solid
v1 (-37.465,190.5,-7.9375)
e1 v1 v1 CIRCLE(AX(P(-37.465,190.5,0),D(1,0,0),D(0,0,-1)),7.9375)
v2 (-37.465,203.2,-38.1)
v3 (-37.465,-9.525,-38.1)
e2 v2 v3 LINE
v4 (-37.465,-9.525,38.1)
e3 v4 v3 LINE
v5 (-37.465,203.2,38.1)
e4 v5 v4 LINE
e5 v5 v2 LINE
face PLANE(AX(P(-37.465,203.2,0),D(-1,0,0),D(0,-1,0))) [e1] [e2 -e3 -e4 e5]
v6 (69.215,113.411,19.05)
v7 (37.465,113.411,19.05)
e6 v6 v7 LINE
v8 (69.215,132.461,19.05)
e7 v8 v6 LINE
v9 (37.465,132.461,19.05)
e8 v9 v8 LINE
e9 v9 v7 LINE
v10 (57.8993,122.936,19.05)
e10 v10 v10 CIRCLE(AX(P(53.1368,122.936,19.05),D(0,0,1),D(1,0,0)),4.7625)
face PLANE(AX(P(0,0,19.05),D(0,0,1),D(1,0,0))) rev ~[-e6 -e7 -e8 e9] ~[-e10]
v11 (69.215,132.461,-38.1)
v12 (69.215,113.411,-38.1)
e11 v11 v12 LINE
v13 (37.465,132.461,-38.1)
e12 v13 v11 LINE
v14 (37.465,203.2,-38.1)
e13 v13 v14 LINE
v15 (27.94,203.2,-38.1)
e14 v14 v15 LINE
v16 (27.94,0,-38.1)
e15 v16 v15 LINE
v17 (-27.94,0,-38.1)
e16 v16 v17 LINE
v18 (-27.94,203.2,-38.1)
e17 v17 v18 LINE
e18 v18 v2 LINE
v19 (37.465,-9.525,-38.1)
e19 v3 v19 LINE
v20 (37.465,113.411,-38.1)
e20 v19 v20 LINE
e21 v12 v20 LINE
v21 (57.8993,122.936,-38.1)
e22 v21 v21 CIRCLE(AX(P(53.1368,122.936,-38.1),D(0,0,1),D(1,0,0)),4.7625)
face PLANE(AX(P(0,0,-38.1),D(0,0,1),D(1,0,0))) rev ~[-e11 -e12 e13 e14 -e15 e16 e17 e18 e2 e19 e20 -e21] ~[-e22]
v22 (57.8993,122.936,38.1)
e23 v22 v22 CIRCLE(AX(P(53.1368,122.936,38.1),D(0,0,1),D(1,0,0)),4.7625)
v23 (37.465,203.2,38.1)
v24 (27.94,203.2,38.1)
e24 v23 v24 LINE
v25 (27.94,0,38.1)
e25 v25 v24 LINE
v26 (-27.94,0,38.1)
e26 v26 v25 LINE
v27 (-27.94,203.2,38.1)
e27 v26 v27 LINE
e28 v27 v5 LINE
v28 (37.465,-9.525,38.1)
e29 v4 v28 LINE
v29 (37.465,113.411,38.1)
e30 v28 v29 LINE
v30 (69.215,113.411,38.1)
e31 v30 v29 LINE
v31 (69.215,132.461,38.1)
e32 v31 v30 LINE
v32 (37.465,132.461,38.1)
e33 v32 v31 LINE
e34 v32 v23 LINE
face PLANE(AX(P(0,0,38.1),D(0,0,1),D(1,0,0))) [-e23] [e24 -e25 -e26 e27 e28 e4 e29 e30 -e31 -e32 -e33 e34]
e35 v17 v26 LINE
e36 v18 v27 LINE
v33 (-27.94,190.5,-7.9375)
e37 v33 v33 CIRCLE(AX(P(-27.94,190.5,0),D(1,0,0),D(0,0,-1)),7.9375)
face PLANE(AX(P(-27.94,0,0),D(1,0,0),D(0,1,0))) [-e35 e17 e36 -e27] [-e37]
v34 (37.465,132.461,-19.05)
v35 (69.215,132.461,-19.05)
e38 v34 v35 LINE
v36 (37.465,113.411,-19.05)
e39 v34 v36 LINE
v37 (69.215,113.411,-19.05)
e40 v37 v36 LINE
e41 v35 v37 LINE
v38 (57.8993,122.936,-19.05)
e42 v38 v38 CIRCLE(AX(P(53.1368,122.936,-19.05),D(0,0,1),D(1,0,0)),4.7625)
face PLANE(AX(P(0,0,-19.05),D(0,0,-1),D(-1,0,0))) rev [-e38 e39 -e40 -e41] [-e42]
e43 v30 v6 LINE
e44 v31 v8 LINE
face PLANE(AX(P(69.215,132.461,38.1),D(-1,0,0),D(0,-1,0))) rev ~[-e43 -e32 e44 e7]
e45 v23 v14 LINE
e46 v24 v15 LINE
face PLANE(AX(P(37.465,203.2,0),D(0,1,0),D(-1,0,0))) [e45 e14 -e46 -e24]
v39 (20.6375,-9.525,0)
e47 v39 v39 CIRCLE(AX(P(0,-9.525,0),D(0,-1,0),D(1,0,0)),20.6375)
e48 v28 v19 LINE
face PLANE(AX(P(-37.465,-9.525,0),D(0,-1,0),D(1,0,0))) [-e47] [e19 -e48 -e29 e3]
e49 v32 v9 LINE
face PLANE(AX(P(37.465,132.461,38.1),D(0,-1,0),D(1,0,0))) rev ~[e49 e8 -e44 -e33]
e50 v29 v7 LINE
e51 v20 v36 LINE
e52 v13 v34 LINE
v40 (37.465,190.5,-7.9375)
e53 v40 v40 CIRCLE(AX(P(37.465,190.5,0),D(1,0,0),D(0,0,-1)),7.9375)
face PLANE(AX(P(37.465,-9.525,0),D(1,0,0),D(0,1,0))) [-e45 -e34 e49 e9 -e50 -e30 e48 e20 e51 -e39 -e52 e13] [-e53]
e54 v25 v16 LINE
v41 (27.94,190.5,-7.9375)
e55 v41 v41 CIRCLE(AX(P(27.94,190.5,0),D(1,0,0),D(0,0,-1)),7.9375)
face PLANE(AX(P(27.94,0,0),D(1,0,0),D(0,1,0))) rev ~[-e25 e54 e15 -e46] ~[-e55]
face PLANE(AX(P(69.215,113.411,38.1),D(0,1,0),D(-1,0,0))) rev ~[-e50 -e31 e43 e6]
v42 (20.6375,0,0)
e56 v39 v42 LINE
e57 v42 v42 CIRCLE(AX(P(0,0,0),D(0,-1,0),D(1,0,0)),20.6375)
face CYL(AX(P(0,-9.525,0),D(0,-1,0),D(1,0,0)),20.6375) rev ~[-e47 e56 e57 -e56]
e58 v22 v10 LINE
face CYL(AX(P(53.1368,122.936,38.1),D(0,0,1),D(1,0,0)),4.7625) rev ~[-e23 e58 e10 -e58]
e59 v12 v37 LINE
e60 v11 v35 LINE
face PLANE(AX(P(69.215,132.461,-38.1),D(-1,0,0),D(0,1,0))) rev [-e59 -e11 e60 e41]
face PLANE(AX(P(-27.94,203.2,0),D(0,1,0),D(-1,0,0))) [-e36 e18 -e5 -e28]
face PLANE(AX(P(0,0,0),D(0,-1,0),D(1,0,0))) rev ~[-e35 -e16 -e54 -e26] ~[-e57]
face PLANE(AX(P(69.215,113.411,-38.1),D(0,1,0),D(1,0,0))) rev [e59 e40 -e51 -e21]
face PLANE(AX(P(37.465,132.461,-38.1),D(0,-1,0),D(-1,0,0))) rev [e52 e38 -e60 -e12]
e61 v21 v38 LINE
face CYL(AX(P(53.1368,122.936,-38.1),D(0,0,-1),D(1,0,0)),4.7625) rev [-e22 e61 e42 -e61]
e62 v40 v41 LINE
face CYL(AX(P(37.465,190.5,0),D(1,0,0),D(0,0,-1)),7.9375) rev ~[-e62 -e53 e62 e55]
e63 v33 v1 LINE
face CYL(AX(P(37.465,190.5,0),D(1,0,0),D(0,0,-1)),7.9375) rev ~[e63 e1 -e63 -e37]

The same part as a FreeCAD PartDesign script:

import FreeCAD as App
import Part
import Sketcher
from FreeCAD import Vector
Q = App.Units.Quantity


def add_polygon(sketch, points):
    """Adds a closed chain of lines whose ends are joined by coincident constraints."""
    first, n = sketch.GeometryCount, len(points)
    for a, b in zip(points, points[1:] + points[:1]):
        sketch.addGeometry(Part.LineSegment(App.Vector(*a, 0), App.Vector(*b, 0)), False)
    for i in range(n):
        sketch.addConstraint(Sketcher.Constraint("Coincident", first + i, 2, first + (i + 1) % n, 1))

doc = App.newDocument("Part")
params = doc.addObject("Spreadsheet::Sheet", "Params")
for row, (alias, value) in enumerate([
    ("sketch1_height", "8 in"),
    ("sketch1_width", "0.375 in"),
    ("pad1_length", "3 in"),
    ("sketch2_diameter", "0.625 in"),
    ("sketch3_diameter", "0.375 in"),
    ("sketch3_width", "1.25 in"),
    ("sketch3_height", "0.75 in"),
    ("pad2_length", "0.75 in"),
    ("sketch4_diameter", "1.625 in"),
], start=1):
    params.set(f"A{row}", alias)
    params.set(f"B{row}", "=" + value)
    params.setAlias(f"B{row}", alias)

body = doc.addObject("PartDesign::Body", "Body")

# Sketch on XY plane
sketch1 = body.newObject("Sketcher::SketchObject", "Sketch")
sketch1.AttachmentSupport = (doc.getObject("XY_Plane"), [""])
sketch1.MapMode = "FlatFace"
add_polygon(sketch1, [(28, 0), (-28, 0), (-28, 203), (-37, 203), (-37, -10), (37, -10), (37, 203), (28, 203)])  # lines 0-7
sketch1.addConstraint([
    Sketcher.Constraint("Horizontal", 0),
    Sketcher.Constraint("Vertical", 1),
    Sketcher.Constraint("Horizontal", 2),
    Sketcher.Constraint("Vertical", 3),
    Sketcher.Constraint("Horizontal", 4),
    Sketcher.Constraint("Vertical", 5),
    Sketcher.Constraint("Horizontal", 6),
    Sketcher.Constraint("Vertical", 7),
    Sketcher.Constraint("Symmetric", 0, 2, 7, 2, -1, 1),
    Sketcher.Constraint("Symmetric", 2, 2, 5, 2, -2),
    Sketcher.Constraint("DistanceY", 1, 1, 1, 2, Q("8 in")),
    Sketcher.Constraint("DistanceX", 0, 2, -1, 1, Q("1.1 in")),
    Sketcher.Constraint("DistanceX", 2, 2, 2, 1, Q("0.375 in")),
    Sketcher.Constraint("DistanceY", 3, 2, -1, 1, Q("0.375 in")),
])
sketch1.setExpression("Constraints[18]", "Params.sketch1_height")
sketch1.setExpression("Constraints[20]", "Params.sketch1_width")
pad1 = body.newObject("PartDesign::Pad", "Pad")
pad1.Profile = sketch1
pad1.setExpression("Length", "Params.pad1_length")
pad1.Midplane = True

# Sketch on YZ plane
sketch2 = body.newObject("Sketcher::SketchObject", "Sketch001")
sketch2.AttachmentSupport = (doc.getObject("YZ_Plane"), [""])
sketch2.MapMode = "FlatFace"
sketch2.AttachmentOffset = App.Placement(Vector(0, 0, 1.475 * 25.4), App.Rotation())
sketch2.addGeometry(Part.Circle(Vector(190, 0, 0), Vector(0, 0, 1), 8), False)
sketch2.addConstraint([
    Sketcher.Constraint("PointOnObject", 0, 3, -1),
    Sketcher.Constraint("Diameter", 0, Q("0.625 in")),
    Sketcher.Constraint("DistanceX", -1, 1, 0, 3, Q("7.5 in")),
])
sketch2.setExpression("Constraints[1]", "Params.sketch2_diameter")
pocket1 = body.newObject("PartDesign::Pocket", "Pocket")
pocket1.Profile = sketch2
pocket1.Type = "ThroughAll"

# Sketch on XY plane
sketch3 = body.newObject("Sketcher::SketchObject", "Sketch002")
sketch3.AttachmentSupport = (doc.getObject("XY_Plane"), [""])
sketch3.MapMode = "FlatFace"
sketch3.AttachmentOffset = App.Placement(Vector(0, 0, 1.5 * 25.4), App.Rotation())
add_polygon(sketch3, [(69.2, 132.5), (37.5, 132.5), (37.5, 113.4), (69.2, 113.4)])  # lines 0-3
sketch3.addGeometry(Part.Circle(Vector(53.1, 122.9, 0), Vector(0, 0, 1), 4.8), False)  # 4
sketch3.addConstraint([
    Sketcher.Constraint("Horizontal", 0),
    Sketcher.Constraint("Vertical", 1),
    Sketcher.Constraint("Horizontal", 2),
    Sketcher.Constraint("Vertical", 3),
    Sketcher.Constraint("Diameter", 4, Q("0.375 in")),
    Sketcher.Constraint("DistanceX", 0, 2, 0, 1, Q("1.25 in")),
    Sketcher.Constraint("DistanceY", 1, 2, 1, 1, Q("0.75 in")),
    Sketcher.Constraint("DistanceY", -1, 1, 0, 2, Q("5.215 in")),
    Sketcher.Constraint("DistanceX", 0, 2, 4, 3, Q("0.617 in")),
    Sketcher.Constraint("DistanceY", 4, 3, 0, 2, Q("0.375 in")),
    Sketcher.Constraint("DistanceX", -1, 1, 4, 3, Q("2.092 in")),
])
sketch3.setExpression("Constraints[8]", "Params.sketch3_diameter")
sketch3.setExpression("Constraints[9]", "Params.sketch3_width")
sketch3.setExpression("Constraints[10]", "Params.sketch3_height")
pad2 = body.newObject("PartDesign::Pad", "Pad001")
pad2.Profile = sketch3
pad2.setExpression("Length", "Params.pad2_length")
pad2.Reversed = True
doc.recompute()

mirrored = body.newObject("PartDesign::Mirrored", "Mirrored")
mirrored.Originals = [pad2]
mirrored.MirrorPlane = (doc.getObject("XY_Plane"), [""])
body.Tip = mirrored

# Sketch on XZ plane
sketch4 = body.newObject("Sketcher::SketchObject", "Sketch003")
sketch4.AttachmentSupport = (doc.getObject("XZ_Plane"), [""])
sketch4.MapMode = "FlatFace"
sketch4.AttachmentOffset = App.Placement(Vector(0, 0, 0.375 * 25.4), App.Rotation())
sketch4.addGeometry(Part.Circle(Vector(0, 0, 0), Vector(0, 0, 1), 21), False)
sketch4.addConstraint([
    Sketcher.Constraint("Coincident", 0, 3, -1, 1),
    Sketcher.Constraint("Diameter", 0, Q("1.625 in")),
])
sketch4.setExpression("Constraints[1]", "Params.sketch4_diameter")
pocket2 = body.newObject("PartDesign::Pocket", "Pocket001")
pocket2.Profile = sketch4
pocket2.Type = "ThroughAll"

doc.recompute()
